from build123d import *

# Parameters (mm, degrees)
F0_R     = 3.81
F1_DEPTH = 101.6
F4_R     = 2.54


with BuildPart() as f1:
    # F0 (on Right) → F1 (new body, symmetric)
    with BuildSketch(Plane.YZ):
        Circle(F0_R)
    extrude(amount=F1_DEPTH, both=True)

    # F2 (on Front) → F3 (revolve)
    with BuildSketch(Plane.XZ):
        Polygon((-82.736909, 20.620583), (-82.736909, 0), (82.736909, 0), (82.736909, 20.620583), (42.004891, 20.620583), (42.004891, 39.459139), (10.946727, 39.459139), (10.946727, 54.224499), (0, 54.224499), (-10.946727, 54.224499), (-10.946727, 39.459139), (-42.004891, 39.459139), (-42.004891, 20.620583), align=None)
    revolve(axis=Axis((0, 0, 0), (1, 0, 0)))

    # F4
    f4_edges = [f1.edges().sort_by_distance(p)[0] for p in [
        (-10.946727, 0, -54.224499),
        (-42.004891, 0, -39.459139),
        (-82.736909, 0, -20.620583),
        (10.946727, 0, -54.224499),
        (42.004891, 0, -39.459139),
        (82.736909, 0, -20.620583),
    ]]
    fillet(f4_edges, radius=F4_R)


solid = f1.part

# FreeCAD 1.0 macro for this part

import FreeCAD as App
import Part
import Sketcher

V = App.Vector
Q = App.Units.Quantity


def edges_at(feature, points):
    """Names of the edges that pass closest to the given points."""
    edges = feature.Shape.Edges
    near = lambda p: min(range(len(edges)), key=lambda i: edges[i].distToShape(Part.Vertex(*p))[0])
    return sorted({f"Edge{near(p) + 1}" for p in points})

doc = App.newDocument("Part")
body = doc.addObject("PartDesign::Body", "Body")

sketch1 = doc.addObject("Sketcher::SketchObject", "Sketch")
body.addObject(sketch1)
sketch1.AttachmentSupport = (doc.YZ_Plane, [""])
sketch1.MapMode = "FlatFace"
sketch1.addGeometry(Part.Circle(V(0, 0, 0), V(0, 0, 1), 3.81), False)
sketch1.addConstraint([
    Sketcher.Constraint("Coincident", 0, 3, -1, 1),
    Sketcher.Constraint("Diameter", 0, Q("0.3 in")),
])
pad1 = doc.addObject("PartDesign::Pad", "Pad")
body.addObject(pad1)
pad1.Profile = sketch1
pad1.Length = Q("8 in")
pad1.Midplane = True

sketch2 = doc.addObject("Sketcher::SketchObject", "Sketch001")
body.addObject(sketch2)
sketch2.AttachmentSupport = (doc.XZ_Plane, [""])
sketch2.MapMode = "FlatFace"
sketch2.addGeometry([
    Part.LineSegment(V(-82.736909, 20.620583, 0), V(-82.736909, 0, 0)),
    Part.LineSegment(V(-82.736909, 0, 0), V(82.736909, 0, 0)),
    Part.LineSegment(V(82.736909, 0, 0), V(82.736909, 20.620583, 0)),
    Part.LineSegment(V(82.736909, 20.620583, 0), V(42.004891, 20.620583, 0)),
    Part.LineSegment(V(42.004891, 20.620583, 0), V(42.004891, 39.459139, 0)),
    Part.LineSegment(V(42.004891, 39.459139, 0), V(10.946727, 39.459139, 0)),
    Part.LineSegment(V(10.946727, 39.459139, 0), V(10.946727, 54.224499, 0)),
    Part.LineSegment(V(10.946727, 54.224499, 0), V(-10.946727, 54.224499, 0)),
    Part.LineSegment(V(-10.946727, 54.224499, 0), V(-10.946727, 39.459139, 0)),
    Part.LineSegment(V(-10.946727, 39.459139, 0), V(-42.004891, 39.459139, 0)),
    Part.LineSegment(V(-42.004891, 39.459139, 0), V(-42.004891, 20.620583, 0)),
    Part.LineSegment(V(-42.004891, 20.620583, 0), V(-82.736909, 20.620583, 0)),
], False)
sketch2.addConstraint([
    Sketcher.Constraint("Coincident", 0, 2, 1, 1),
    Sketcher.Constraint("Coincident", 1, 2, 2, 1),
    Sketcher.Constraint("Coincident", 2, 2, 3, 1),
    Sketcher.Constraint("Coincident", 3, 2, 4, 1),
    Sketcher.Constraint("Coincident", 4, 2, 5, 1),
    Sketcher.Constraint("Coincident", 5, 2, 6, 1),
    Sketcher.Constraint("Coincident", 6, 2, 7, 1),
    Sketcher.Constraint("Coincident", 7, 2, 8, 1),
    Sketcher.Constraint("Coincident", 8, 2, 9, 1),
    Sketcher.Constraint("Coincident", 9, 2, 10, 1),
    Sketcher.Constraint("Coincident", 10, 2, 11, 1),
    Sketcher.Constraint("Coincident", 11, 2, 0, 1),
    Sketcher.Constraint("Vertical", 0),
    Sketcher.Constraint("Horizontal", 1),
    Sketcher.Constraint("Vertical", 2),
    Sketcher.Constraint("Horizontal", 3),
    Sketcher.Constraint("Vertical", 4),
    Sketcher.Constraint("Horizontal", 5),
    Sketcher.Constraint("Vertical", 6),
    Sketcher.Constraint("Horizontal", 7),
    Sketcher.Constraint("Vertical", 8),
    Sketcher.Constraint("Horizontal", 9),
    Sketcher.Constraint("Vertical", 10),
    Sketcher.Constraint("Horizontal", 11),
    Sketcher.Constraint("Symmetric", 0, 2, 1, 2, -1, 1),
    Sketcher.Constraint("Symmetric", 5, 2, 8, 2, -2),
    Sketcher.Constraint("Symmetric", 3, 2, 10, 2, -2),
    Sketcher.Constraint("DistanceX", 1, 1, 1, 2, Q("165.473818 mm")),
    Sketcher.Constraint("DistanceY", 6, 1, 6, 2, Q("14.76536 mm")),
    Sketcher.Constraint("DistanceY", -1, 1, 6, 2, Q("54.224499 mm")),
    Sketcher.Constraint("DistanceX", 0, 2, 3, 2, Q("124.7418 mm")),
    Sketcher.Constraint("DistanceX", 5, 2, 5, 1, Q("31.058164 mm")),
    Sketcher.Constraint("DistanceY", 0, 2, 0, 1, Q("20.620583 mm")),
])
revolution = doc.addObject("PartDesign::Revolution", "Revolution")
body.addObject(revolution)
revolution.Profile = sketch2
revolution.ReferenceAxis = (sketch2, ["H_Axis"])
revolution.Angle = 360
doc.recompute()

fillet = doc.addObject("PartDesign::Fillet", "Fillet")
body.addObject(fillet)
fillet.Base = (revolution, edges_at(revolution, [
    (-10.947, 0, -54.224),
    (-42.005, 0, -39.459),
    (-82.737, 0, -20.621),
    (10.947, 0, -54.224),
    (42.005, 0, -39.459),
    (82.737, 0, -20.621),
]))
fillet.Radius = Q("0.1 in")

doc.recompute()
